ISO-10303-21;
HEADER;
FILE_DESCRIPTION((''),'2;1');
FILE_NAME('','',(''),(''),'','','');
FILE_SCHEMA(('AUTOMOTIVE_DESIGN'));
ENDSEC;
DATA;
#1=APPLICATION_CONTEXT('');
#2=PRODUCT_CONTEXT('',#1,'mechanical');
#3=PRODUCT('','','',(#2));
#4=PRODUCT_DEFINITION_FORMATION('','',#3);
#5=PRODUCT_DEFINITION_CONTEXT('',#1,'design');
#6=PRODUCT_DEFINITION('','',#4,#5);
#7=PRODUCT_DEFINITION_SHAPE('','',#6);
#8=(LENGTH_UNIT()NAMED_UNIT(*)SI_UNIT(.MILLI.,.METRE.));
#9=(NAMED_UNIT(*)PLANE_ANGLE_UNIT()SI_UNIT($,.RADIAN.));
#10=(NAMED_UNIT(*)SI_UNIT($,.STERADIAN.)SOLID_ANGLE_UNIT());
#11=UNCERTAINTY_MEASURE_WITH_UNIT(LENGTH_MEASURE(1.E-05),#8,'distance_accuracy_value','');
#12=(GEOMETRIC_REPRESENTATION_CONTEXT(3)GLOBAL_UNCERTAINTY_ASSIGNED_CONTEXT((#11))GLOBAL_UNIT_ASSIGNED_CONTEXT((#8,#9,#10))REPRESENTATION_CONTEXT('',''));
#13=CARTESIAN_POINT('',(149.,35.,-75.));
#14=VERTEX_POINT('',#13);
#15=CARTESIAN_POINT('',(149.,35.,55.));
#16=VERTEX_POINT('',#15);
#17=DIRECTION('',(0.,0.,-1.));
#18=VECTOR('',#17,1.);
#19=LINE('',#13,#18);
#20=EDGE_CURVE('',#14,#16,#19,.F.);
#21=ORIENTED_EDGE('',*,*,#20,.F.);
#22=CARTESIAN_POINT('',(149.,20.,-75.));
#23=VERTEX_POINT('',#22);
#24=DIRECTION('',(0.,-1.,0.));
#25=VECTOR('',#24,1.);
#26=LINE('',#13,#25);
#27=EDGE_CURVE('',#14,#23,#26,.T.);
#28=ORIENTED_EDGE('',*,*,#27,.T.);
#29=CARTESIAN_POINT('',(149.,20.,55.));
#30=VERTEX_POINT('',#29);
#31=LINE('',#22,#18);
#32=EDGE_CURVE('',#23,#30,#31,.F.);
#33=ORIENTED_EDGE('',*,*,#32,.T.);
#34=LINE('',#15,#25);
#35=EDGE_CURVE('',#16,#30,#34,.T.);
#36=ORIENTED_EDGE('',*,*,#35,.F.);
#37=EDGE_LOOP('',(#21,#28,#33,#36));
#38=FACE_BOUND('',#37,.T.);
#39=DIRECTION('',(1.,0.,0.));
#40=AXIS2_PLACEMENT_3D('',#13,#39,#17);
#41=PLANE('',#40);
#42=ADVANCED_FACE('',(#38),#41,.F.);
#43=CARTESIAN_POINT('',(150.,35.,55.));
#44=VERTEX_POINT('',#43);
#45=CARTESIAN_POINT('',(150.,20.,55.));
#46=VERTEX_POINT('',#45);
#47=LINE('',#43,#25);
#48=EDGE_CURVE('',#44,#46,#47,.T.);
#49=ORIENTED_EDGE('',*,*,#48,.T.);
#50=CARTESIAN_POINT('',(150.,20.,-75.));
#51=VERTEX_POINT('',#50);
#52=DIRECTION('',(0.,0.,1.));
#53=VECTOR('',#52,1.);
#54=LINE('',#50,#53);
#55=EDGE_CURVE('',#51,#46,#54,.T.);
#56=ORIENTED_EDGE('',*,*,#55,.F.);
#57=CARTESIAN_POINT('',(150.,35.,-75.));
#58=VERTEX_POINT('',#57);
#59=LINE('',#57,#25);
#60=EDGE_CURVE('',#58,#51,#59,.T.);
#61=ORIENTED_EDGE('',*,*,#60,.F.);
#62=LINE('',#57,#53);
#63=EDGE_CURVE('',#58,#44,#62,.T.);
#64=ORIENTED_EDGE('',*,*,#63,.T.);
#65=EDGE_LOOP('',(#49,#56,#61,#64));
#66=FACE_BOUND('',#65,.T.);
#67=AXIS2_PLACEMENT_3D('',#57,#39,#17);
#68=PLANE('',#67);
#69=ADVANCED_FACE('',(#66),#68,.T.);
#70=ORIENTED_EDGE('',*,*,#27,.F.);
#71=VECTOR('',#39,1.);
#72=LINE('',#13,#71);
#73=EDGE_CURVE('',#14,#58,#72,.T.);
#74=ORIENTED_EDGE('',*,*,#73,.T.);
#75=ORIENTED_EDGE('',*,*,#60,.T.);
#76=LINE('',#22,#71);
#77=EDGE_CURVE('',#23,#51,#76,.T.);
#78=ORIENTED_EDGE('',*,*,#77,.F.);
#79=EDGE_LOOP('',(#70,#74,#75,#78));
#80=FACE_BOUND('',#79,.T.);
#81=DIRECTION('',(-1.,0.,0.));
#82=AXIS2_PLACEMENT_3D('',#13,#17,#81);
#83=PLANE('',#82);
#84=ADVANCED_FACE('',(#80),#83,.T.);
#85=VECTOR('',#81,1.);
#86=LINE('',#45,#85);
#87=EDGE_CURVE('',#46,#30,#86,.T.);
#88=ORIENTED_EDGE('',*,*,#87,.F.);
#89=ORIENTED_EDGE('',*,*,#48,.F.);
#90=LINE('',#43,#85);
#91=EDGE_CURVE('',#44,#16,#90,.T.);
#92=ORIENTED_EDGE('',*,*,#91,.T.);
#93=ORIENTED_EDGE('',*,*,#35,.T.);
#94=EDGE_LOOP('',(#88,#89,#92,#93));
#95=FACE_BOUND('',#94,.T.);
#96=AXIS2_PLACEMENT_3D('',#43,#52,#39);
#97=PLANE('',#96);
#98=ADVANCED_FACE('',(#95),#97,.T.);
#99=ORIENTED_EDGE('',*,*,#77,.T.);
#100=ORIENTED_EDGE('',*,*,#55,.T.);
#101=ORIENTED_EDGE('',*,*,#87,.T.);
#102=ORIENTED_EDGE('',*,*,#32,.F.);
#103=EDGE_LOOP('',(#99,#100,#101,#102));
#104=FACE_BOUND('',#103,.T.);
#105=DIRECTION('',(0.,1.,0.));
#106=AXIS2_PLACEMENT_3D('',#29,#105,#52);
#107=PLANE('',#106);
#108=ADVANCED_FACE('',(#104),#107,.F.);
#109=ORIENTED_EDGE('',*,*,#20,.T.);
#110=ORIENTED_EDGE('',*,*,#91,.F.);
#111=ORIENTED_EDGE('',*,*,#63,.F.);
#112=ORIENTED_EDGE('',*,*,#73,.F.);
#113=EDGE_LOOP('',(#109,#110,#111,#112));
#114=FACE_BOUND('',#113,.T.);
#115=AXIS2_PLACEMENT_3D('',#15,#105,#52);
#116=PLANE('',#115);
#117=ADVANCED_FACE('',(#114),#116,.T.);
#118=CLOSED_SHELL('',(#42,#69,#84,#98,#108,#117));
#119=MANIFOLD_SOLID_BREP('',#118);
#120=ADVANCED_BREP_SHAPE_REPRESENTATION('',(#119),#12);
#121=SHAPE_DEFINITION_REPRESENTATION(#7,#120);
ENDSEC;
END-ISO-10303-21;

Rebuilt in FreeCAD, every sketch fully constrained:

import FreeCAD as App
import Part
import Sketcher
from FreeCAD import Vector


def add_polygon(sketch, points):
    """Adds a closed chain of lines whose ends are joined by coincident constraints."""
    first, n = sketch.GeometryCount, len(points)
    for a, b in zip(points, points[1:] + points[:1]):
        sketch.addGeometry(Part.LineSegment(App.Vector(*a, 0), App.Vector(*b, 0)), False)
    for i in range(n):
        sketch.addConstraint(Sketcher.Constraint("Coincident", first + i, 2, first + (i + 1) % n, 1))

doc = App.newDocument("Part")
body = doc.addObject("PartDesign::Body", "Body")

# Sketch on XZ plane
sketch1 = doc.addObject("Sketcher::SketchObject", "Sketch")
body.addObject(sketch1)
sketch1.AttachmentSupport = (doc.XZ_Plane, [""])
sketch1.MapMode = "FlatFace"
sketch1.AttachmentOffset = App.Placement(Vector(0, 0, -20), App.Rotation())
add_polygon(sketch1, [(149, -75), (149, 55), (150, 55), (150, -75)])  # lines 0-3
sketch1.addConstraint([
    Sketcher.Constraint("Vertical", 0),
    Sketcher.Constraint("Horizontal", 1),
    Sketcher.Constraint("Vertical", 2),
    Sketcher.Constraint("Horizontal", 3),
    Sketcher.Constraint("DistanceX", 1, 1, 1, 2, 1.0),
    Sketcher.Constraint("DistanceY", 0, 1, 0, 2, 130.0),
    Sketcher.Constraint("DistanceX", -1, 1, 0, 2, 149.0),
    Sketcher.Constraint("DistanceY", -1, 1, 0, 2, 55.0),
])
pad1 = doc.addObject("PartDesign::Pad", "Pad")
body.addObject(pad1)
pad1.Profile = sketch1
pad1.Length = 15
pad1.Reversed = True

doc.recompute()
